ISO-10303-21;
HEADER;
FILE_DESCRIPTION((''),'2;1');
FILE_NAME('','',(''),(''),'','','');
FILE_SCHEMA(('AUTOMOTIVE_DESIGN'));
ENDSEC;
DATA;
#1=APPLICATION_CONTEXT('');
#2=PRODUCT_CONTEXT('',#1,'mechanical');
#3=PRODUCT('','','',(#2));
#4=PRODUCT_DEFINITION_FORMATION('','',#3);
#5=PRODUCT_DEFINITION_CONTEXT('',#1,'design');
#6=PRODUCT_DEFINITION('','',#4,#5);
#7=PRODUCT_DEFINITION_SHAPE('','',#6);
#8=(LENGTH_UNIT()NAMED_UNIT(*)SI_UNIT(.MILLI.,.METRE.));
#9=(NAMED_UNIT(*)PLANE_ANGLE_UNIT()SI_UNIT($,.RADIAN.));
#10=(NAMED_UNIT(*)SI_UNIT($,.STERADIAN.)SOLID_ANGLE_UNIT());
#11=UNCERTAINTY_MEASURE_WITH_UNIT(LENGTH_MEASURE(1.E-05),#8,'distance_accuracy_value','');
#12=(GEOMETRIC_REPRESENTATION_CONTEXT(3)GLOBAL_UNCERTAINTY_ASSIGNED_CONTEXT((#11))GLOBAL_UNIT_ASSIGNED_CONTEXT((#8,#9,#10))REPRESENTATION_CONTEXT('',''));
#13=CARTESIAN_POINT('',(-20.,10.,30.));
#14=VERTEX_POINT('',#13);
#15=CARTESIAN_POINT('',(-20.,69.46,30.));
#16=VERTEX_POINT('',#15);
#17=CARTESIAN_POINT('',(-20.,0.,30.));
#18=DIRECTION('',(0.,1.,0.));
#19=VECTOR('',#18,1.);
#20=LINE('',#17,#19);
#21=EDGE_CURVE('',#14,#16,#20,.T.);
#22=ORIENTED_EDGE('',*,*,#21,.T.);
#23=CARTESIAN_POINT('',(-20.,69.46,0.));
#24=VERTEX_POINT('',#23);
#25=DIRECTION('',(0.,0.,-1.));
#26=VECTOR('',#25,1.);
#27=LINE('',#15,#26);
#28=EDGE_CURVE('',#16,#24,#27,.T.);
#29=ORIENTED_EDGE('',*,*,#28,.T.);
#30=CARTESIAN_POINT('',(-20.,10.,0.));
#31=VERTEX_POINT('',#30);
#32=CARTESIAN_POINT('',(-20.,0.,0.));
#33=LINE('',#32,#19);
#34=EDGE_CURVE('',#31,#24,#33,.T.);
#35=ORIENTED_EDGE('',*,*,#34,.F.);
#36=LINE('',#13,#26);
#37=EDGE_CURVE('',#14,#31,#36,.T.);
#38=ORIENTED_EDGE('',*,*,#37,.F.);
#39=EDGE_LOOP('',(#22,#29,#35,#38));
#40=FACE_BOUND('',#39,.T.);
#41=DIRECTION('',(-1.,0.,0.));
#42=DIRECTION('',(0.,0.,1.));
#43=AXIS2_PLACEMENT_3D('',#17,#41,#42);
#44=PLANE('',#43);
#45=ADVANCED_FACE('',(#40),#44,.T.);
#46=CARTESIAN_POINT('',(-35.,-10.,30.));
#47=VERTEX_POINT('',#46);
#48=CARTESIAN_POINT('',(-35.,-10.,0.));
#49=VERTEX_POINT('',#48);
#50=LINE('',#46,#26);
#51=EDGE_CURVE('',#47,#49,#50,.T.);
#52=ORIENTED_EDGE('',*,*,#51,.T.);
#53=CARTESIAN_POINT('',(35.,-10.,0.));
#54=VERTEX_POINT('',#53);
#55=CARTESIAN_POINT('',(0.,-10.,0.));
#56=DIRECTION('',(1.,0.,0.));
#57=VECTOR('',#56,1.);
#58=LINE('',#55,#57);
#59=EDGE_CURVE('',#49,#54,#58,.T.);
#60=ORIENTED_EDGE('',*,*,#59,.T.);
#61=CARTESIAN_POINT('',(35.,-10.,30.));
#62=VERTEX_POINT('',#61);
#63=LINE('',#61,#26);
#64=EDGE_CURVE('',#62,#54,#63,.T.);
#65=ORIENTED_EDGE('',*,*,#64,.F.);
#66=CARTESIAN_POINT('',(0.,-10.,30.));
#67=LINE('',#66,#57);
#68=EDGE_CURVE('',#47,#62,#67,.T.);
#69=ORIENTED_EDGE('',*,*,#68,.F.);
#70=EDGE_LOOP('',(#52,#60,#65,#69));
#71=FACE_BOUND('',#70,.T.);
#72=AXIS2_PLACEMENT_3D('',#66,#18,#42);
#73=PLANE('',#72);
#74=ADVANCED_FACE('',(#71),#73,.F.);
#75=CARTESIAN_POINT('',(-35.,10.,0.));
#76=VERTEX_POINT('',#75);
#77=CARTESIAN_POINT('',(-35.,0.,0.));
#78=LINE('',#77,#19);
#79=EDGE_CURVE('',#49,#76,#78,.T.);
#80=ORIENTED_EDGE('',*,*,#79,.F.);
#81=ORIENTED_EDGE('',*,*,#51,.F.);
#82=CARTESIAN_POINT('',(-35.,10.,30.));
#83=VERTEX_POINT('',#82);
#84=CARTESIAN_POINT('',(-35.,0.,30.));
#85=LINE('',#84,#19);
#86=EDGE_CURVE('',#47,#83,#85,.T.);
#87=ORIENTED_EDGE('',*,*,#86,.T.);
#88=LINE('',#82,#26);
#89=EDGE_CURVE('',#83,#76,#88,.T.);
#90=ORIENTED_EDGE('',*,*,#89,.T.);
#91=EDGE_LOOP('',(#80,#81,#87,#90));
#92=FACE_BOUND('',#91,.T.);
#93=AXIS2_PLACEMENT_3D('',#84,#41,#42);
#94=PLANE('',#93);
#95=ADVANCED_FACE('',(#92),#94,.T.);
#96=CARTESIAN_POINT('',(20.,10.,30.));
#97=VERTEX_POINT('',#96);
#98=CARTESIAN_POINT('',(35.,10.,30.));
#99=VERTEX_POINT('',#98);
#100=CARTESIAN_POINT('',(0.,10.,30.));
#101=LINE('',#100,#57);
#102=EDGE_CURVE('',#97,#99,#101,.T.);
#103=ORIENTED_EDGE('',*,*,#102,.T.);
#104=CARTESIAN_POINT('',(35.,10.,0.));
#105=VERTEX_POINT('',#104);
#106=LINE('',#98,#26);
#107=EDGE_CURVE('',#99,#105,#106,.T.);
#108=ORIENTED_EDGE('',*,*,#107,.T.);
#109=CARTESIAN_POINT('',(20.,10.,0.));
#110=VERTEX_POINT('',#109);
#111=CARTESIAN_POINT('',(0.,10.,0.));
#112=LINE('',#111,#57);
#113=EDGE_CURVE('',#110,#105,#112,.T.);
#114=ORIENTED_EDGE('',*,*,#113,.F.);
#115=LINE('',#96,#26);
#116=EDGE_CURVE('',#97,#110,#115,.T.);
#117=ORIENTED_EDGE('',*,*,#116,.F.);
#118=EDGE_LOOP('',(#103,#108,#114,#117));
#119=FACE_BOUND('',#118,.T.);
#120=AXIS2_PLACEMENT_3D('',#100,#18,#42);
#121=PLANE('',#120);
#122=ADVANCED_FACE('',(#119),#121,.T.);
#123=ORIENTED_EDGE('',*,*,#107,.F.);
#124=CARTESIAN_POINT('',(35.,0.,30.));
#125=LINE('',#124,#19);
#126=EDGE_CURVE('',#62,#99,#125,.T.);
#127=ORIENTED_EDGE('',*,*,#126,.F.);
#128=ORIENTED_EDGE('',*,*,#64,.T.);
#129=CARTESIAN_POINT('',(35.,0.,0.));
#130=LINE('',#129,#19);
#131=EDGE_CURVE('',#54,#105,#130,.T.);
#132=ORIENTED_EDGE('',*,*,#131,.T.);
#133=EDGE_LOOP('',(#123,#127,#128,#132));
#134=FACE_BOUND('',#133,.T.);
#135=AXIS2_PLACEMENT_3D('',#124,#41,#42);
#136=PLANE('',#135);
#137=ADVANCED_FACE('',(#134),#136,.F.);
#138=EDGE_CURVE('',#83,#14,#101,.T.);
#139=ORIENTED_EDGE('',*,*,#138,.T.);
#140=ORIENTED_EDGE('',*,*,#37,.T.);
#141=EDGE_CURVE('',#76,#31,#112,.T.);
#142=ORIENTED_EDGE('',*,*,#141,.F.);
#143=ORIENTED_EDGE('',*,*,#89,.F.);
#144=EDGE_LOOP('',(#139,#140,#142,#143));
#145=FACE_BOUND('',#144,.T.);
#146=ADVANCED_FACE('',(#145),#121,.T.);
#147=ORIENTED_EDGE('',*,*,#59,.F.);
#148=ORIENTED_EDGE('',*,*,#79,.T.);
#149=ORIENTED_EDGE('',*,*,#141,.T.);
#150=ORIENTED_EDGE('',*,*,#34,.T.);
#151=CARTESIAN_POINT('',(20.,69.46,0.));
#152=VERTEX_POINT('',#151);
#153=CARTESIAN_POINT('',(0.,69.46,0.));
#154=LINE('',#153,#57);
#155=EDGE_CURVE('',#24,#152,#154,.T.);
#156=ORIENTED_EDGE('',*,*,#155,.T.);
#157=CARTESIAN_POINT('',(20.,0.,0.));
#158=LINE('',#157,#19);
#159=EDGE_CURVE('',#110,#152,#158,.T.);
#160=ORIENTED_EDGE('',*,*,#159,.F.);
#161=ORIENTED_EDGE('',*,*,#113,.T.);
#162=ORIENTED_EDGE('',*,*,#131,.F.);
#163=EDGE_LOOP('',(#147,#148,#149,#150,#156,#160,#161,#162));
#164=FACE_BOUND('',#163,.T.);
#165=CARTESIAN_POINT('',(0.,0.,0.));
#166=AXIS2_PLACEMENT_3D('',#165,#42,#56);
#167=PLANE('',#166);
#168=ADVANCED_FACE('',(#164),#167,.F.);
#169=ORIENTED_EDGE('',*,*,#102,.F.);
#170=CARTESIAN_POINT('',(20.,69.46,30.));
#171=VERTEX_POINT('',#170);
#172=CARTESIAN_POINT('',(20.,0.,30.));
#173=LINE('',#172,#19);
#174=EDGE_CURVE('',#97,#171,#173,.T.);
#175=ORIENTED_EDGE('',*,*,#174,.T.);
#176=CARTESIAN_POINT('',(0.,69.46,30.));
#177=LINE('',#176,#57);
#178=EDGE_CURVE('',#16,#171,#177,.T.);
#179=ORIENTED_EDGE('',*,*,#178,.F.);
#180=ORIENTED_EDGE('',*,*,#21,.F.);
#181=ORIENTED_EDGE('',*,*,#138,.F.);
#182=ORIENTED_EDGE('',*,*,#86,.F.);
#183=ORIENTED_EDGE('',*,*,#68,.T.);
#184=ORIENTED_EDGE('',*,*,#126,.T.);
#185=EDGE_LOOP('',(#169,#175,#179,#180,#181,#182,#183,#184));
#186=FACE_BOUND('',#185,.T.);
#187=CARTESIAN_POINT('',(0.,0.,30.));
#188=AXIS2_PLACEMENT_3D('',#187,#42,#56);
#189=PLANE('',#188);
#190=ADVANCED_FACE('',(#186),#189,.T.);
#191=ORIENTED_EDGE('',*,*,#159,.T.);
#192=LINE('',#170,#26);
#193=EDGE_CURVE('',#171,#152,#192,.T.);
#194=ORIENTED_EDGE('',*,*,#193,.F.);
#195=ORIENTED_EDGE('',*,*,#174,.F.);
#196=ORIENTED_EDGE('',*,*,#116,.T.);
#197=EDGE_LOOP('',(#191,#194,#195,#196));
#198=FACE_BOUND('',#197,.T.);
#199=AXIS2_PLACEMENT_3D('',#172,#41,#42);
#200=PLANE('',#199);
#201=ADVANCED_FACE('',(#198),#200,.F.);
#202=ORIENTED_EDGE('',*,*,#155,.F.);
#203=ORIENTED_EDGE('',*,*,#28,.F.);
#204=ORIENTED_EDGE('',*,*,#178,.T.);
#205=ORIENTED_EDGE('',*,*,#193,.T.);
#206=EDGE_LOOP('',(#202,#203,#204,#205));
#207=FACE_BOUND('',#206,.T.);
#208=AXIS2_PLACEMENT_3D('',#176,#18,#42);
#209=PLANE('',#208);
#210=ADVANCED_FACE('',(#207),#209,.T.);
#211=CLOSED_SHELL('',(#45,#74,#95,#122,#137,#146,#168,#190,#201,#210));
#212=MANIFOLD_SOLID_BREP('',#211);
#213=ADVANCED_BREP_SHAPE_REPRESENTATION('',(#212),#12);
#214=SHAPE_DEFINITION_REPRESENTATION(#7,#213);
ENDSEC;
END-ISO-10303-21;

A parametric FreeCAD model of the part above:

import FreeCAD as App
import Part
import Sketcher

doc = App.newDocument("Part")
body = doc.addObject("PartDesign::Body", "Body")

sketch1 = doc.addObject("Sketcher::SketchObject", "Sketch")
body.addObject(sketch1)
sketch1.AttachmentSupport = (doc.XY_Plane, [""])
sketch1.MapMode = "FlatFace"
sketch1.addGeometry(Part.LineSegment(App.Vector(-20, 69.46, 0), App.Vector(-20, 10, 0)), False)
sketch1.addGeometry(Part.LineSegment(App.Vector(-20, 10, 0), App.Vector(-35, 10, 0)), False)
sketch1.addGeometry(Part.LineSegment(App.Vector(-35, 10, 0), App.Vector(-35, -10, 0)), False)
sketch1.addGeometry(Part.LineSegment(App.Vector(-35, -10, 0), App.Vector(35, -10, 0)), False)
sketch1.addGeometry(Part.LineSegment(App.Vector(35, -10, 0), App.Vector(35, 10, 0)), False)
sketch1.addGeometry(Part.LineSegment(App.Vector(35, 10, 0), App.Vector(20, 10, 0)), False)
sketch1.addGeometry(Part.LineSegment(App.Vector(20, 10, 0), App.Vector(20, 69.46, 0)), False)
sketch1.addGeometry(Part.LineSegment(App.Vector(20, 69.46, 0), App.Vector(-20, 69.46, 0)), False)
sketch1.addConstraint(Sketcher.Constraint("Coincident", 0, 2, 1, 1))
sketch1.addConstraint(Sketcher.Constraint("Coincident", 1, 2, 2, 1))
sketch1.addConstraint(Sketcher.Constraint("Coincident", 2, 2, 3, 1))
sketch1.addConstraint(Sketcher.Constraint("Coincident", 3, 2, 4, 1))
sketch1.addConstraint(Sketcher.Constraint("Coincident", 4, 2, 5, 1))
sketch1.addConstraint(Sketcher.Constraint("Coincident", 5, 2, 6, 1))
sketch1.addConstraint(Sketcher.Constraint("Coincident", 6, 2, 7, 1))
sketch1.addConstraint(Sketcher.Constraint("Coincident", 7, 2, 0, 1))
sketch1.addConstraint(Sketcher.Constraint("Vertical", 0))
sketch1.addConstraint(Sketcher.Constraint("Horizontal", 1))
sketch1.addConstraint(Sketcher.Constraint("Vertical", 2))
sketch1.addConstraint(Sketcher.Constraint("Horizontal", 3))
sketch1.addConstraint(Sketcher.Constraint("Vertical", 4))
sketch1.addConstraint(Sketcher.Constraint("Horizontal", 5))
sketch1.addConstraint(Sketcher.Constraint("Vertical", 6))
sketch1.addConstraint(Sketcher.Constraint("Horizontal", 7))
sketch1.addConstraint(Sketcher.Constraint("Symmetric", 1, 2, 3, 2, -1, 1))
sketch1.addConstraint(Sketcher.Constraint("Symmetric", 0, 2, 5, 2, -2))
sketch1.addConstraint(Sketcher.Constraint("DistanceX", 1, 2, 1, 1, 15.0))
sketch1.addConstraint(Sketcher.Constraint("DistanceX", 3, 1, 3, 2, 70.0))
sketch1.addConstraint(Sketcher.Constraint("DistanceY", 2, 2, 2, 1, 20.0))
sketch1.addConstraint(Sketcher.Constraint("DistanceY", 0, 2, 0, 1, 59.46))
pad1 = doc.addObject("PartDesign::Pad", "Pad")
body.addObject(pad1)
pad1.Profile = sketch1
pad1.Length = 30

doc.recompute()
